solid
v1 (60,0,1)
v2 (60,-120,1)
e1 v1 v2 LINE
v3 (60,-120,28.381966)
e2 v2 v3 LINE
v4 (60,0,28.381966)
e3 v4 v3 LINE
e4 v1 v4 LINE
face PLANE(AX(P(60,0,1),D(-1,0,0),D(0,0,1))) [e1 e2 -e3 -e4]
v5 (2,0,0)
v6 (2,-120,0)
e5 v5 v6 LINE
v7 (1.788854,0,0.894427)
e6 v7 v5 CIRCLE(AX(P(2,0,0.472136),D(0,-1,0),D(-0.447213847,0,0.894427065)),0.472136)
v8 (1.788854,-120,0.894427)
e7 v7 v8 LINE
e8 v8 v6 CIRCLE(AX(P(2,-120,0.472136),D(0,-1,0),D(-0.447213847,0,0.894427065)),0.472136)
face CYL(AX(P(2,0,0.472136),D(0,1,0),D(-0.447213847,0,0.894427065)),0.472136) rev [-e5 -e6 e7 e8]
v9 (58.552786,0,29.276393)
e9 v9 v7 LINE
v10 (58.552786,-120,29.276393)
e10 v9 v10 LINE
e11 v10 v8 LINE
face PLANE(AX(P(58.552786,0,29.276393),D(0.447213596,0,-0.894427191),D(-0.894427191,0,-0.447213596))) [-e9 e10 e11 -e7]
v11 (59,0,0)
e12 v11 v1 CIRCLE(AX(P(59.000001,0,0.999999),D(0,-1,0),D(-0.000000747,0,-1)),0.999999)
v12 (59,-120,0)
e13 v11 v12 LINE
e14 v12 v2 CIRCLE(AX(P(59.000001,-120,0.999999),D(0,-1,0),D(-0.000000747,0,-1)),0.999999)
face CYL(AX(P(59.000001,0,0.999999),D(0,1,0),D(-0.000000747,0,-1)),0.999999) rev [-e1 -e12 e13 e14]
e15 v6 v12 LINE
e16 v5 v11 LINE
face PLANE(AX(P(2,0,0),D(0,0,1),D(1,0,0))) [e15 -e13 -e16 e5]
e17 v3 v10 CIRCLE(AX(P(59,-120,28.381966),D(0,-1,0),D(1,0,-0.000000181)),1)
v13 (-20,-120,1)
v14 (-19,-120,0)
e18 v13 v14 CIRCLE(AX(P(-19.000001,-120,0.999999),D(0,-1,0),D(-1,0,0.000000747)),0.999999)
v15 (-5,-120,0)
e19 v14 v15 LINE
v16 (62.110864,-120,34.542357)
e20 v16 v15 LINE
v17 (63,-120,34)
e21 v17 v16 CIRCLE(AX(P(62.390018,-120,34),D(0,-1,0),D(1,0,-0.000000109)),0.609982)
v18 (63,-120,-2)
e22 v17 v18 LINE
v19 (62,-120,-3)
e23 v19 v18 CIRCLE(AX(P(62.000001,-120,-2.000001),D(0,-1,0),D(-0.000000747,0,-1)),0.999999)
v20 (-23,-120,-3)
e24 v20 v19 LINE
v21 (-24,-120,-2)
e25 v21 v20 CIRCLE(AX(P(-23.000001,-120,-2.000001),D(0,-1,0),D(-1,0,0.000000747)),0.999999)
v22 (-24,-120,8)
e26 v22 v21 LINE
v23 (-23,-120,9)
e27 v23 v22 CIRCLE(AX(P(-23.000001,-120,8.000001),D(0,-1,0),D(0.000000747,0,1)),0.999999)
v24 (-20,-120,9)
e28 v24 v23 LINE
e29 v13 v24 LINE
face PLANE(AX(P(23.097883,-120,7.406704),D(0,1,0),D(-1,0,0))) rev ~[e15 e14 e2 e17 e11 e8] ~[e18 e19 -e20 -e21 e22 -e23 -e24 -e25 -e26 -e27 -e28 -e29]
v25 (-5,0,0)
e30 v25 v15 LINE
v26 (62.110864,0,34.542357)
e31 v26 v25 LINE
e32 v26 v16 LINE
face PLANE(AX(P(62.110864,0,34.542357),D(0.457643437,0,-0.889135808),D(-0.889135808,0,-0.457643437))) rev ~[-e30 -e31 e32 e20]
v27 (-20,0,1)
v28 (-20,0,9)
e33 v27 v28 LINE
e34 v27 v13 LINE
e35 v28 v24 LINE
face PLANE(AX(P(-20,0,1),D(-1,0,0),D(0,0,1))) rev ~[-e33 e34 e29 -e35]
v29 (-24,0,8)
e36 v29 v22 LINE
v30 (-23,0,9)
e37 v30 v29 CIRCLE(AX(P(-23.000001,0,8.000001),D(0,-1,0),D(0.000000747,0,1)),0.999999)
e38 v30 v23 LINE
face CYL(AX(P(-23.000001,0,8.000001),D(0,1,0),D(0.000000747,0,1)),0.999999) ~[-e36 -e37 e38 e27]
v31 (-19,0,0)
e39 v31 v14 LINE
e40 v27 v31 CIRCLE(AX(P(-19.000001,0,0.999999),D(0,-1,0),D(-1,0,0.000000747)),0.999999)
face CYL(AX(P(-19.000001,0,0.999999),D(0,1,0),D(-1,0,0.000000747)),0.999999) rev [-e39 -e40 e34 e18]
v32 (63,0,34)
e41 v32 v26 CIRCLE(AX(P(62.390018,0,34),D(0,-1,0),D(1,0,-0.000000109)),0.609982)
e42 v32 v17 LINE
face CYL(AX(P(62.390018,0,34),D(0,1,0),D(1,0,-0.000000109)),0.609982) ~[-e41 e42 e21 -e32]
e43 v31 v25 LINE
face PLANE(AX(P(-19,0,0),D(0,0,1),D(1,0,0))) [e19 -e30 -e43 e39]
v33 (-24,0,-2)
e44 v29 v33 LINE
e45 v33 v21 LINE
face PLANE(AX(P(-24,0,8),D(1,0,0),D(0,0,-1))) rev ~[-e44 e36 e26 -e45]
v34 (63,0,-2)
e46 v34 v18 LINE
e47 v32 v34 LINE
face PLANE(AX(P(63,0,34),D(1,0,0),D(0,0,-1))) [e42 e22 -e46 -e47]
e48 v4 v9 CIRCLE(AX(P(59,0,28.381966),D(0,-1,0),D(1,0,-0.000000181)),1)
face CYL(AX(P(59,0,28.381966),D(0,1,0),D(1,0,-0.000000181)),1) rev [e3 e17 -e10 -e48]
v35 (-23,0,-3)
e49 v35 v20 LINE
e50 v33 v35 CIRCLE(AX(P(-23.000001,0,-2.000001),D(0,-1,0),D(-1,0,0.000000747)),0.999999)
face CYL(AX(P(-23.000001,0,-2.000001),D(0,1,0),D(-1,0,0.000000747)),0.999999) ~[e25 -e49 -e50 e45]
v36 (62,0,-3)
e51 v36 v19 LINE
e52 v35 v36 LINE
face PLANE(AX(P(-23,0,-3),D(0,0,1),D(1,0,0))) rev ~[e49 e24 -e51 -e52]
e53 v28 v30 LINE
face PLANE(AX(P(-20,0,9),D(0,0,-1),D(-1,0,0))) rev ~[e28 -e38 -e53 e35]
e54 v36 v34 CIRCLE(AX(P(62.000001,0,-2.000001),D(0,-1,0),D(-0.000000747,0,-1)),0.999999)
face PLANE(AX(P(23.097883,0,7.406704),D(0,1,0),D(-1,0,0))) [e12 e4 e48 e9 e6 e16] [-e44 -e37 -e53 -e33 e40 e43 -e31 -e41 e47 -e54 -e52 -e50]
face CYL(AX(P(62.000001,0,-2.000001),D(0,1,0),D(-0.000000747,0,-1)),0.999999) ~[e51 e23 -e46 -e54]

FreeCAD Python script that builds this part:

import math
import FreeCAD as App
import Part
import Sketcher
Q = App.Units.Quantity

doc = App.newDocument("Part")
body = doc.addObject("PartDesign::Body", "Body")

# Sketch on XZ plane
sketch1 = body.newObject("Sketcher::SketchObject", "Sketch")
sketch1.AttachmentSupport = (doc.getObject("XZ_Plane"), [""])
sketch1.MapMode = "FlatFace"
sketch1.addGeometry(Part.LineSegment(App.Vector(63, -2, 0), App.Vector(63, 34, 0)), False)
sketch1.addGeometry(Part.ArcOfCircle(Part.Circle(App.Vector(62.39, 34, 0), App.Vector(0, 0, 1), 0.61), math.radians(0), math.radians(117)), False)
sketch1.addGeometry(Part.LineSegment(App.Vector(62.11, 34.54, 0), App.Vector(-5, 0, 0)), False)
sketch1.addGeometry(Part.LineSegment(App.Vector(-5, 0, 0), App.Vector(-19, 0, 0)), False)
sketch1.addGeometry(Part.ArcOfCircle(Part.Circle(App.Vector(-19, 1, 0), App.Vector(0, 0, 1), 1), math.radians(180), math.radians(270)), False)
sketch1.addGeometry(Part.LineSegment(App.Vector(-20, 1, 0), App.Vector(-20, 9, 0)), False)
sketch1.addGeometry(Part.LineSegment(App.Vector(-20, 9, 0), App.Vector(-23, 9, 0)), False)
sketch1.addGeometry(Part.ArcOfCircle(Part.Circle(App.Vector(-23, 8, 0), App.Vector(0, 0, 1), 1), math.radians(90), math.radians(180)), False)
sketch1.addGeometry(Part.LineSegment(App.Vector(-24, 8, 0), App.Vector(-24, -2, 0)), False)
sketch1.addGeometry(Part.ArcOfCircle(Part.Circle(App.Vector(-23, -2, 0), App.Vector(0, 0, 1), 1), math.radians(180), math.radians(270)), False)
sketch1.addGeometry(Part.LineSegment(App.Vector(-23, -3, 0), App.Vector(62, -3, 0)), False)
sketch1.addGeometry(Part.ArcOfCircle(Part.Circle(App.Vector(62, -2, 0), App.Vector(0, 0, 1), 1), math.radians(-90), math.radians(0)), False)
sketch1.addGeometry(Part.ArcOfCircle(Part.Circle(App.Vector(2, 0.47, 0), App.Vector(0, 0, 1), 0.47), math.radians(117), math.radians(270)), False)
sketch1.addGeometry(Part.LineSegment(App.Vector(1.79, 0.89, 0), App.Vector(58.55, 29.28, 0)), False)
sketch1.addGeometry(Part.ArcOfCircle(Part.Circle(App.Vector(59, 28.38, 0), App.Vector(0, 0, 1), 1), math.radians(0), math.radians(117)), False)
sketch1.addGeometry(Part.LineSegment(App.Vector(60, 28.38, 0), App.Vector(60, 1, 0)), False)
sketch1.addGeometry(Part.ArcOfCircle(Part.Circle(App.Vector(59, 1, 0), App.Vector(0, 0, 1), 1), math.radians(-90), math.radians(0)), False)
sketch1.addGeometry(Part.LineSegment(App.Vector(59, 0, 0), App.Vector(2, 0, 0)), False)
sketch1.addConstraint(Sketcher.Constraint("Tangent", 0, 2, 1, 1))
sketch1.addConstraint(Sketcher.Constraint("Tangent", 1, 2, 2, 1))
sketch1.addConstraint(Sketcher.Constraint("Coincident", 2, 2, 3, 1))
sketch1.addConstraint(Sketcher.Constraint("Tangent", 3, 2, 4, 2))
sketch1.addConstraint(Sketcher.Constraint("Tangent", 4, 1, 5, 1))
sketch1.addConstraint(Sketcher.Constraint("Coincident", 5, 2, 6, 1))
sketch1.addConstraint(Sketcher.Constraint("Tangent", 6, 2, 7, 1))
sketch1.addConstraint(Sketcher.Constraint("Tangent", 7, 2, 8, 1))
sketch1.addConstraint(Sketcher.Constraint("Tangent", 8, 2, 9, 1))
sketch1.addConstraint(Sketcher.Constraint("Tangent", 9, 2, 10, 1))
sketch1.addConstraint(Sketcher.Constraint("Tangent", 10, 2, 11, 1))
sketch1.addConstraint(Sketcher.Constraint("Tangent", 11, 2, 0, 1))
sketch1.addConstraint(Sketcher.Constraint("Tangent", 12, 1, 13, 1))
sketch1.addConstraint(Sketcher.Constraint("Tangent", 13, 2, 14, 2))
sketch1.addConstraint(Sketcher.Constraint("Tangent", 14, 1, 15, 1))
sketch1.addConstraint(Sketcher.Constraint("Tangent", 15, 2, 16, 2))
sketch1.addConstraint(Sketcher.Constraint("Tangent", 16, 1, 17, 1))
sketch1.addConstraint(Sketcher.Constraint("Tangent", 17, 2, 12, 2))
sketch1.addConstraint(Sketcher.Constraint("Vertical", 0))
sketch1.addConstraint(Sketcher.Constraint("Horizontal", 3))
sketch1.addConstraint(Sketcher.Constraint("Vertical", 5))
sketch1.addConstraint(Sketcher.Constraint("Horizontal", 6))
sketch1.addConstraint(Sketcher.Constraint("Vertical", 8))
sketch1.addConstraint(Sketcher.Constraint("Horizontal", 10))
sketch1.addConstraint(Sketcher.Constraint("Vertical", 15))
sketch1.addConstraint(Sketcher.Constraint("Horizontal", 17))
sketch1.addConstraint(Sketcher.Constraint("Equal", 4, 7))
sketch1.addConstraint(Sketcher.Constraint("Equal", 7, 9))
sketch1.addConstraint(Sketcher.Constraint("Equal", 9, 11))
sketch1.addConstraint(Sketcher.Constraint("Equal", 11, 14))
sketch1.addConstraint(Sketcher.Constraint("Equal", 14, 16))
sketch1.addConstraint(Sketcher.Constraint("PointOnObject", 2, 2, -1))
sketch1.addConstraint(Sketcher.Constraint("PointOnObject", 16, 1, -1))
sketch1.addConstraint(Sketcher.Constraint("Radius", 4, Q("0.999999 mm")))
sketch1.addConstraint(Sketcher.Constraint("DistanceX", 3, 2, 3, 1, Q("14 mm")))
sketch1.addConstraint(Sketcher.Constraint("DistanceX", 6, 2, 6, 1, Q("3 mm")))
sketch1.addConstraint(Sketcher.Constraint("DistanceX", 10, 1, 10, 2, Q("85 mm")))
sketch1.addConstraint(Sketcher.Constraint("DistanceX", 17, 2, 17, 1, Q("57 mm")))
sketch1.addConstraint(Sketcher.Constraint("DistanceY", 0, 1, 0, 2, Q("36 mm")))
sketch1.addConstraint(Sketcher.Constraint("DistanceY", 5, 1, 5, 2, Q("8 mm")))
sketch1.addConstraint(Sketcher.Constraint("DistanceY", 8, 2, 8, 1, Q("10 mm")))
sketch1.addConstraint(Sketcher.Constraint("DistanceX", 4, 3, -1, 1, Q("19.000001 mm")))
sketch1.addConstraint(Sketcher.Constraint("DistanceX", -1, 1, 12, 3, Q("2 mm")))
sketch1.addConstraint(Sketcher.Constraint("Radius", 1, Q("0.609982 mm")))
sketch1.addConstraint(Sketcher.Constraint("Radius", 12, Q("0.472136 mm")))
sketch1.addConstraint(Sketcher.Constraint("DistanceY", 15, 2, 15, 1, Q("27.381966 mm")))
pad1 = body.newObject("PartDesign::Pad", "Pad")
pad1.Profile = sketch1
pad1.Length = 120

doc.recompute()
